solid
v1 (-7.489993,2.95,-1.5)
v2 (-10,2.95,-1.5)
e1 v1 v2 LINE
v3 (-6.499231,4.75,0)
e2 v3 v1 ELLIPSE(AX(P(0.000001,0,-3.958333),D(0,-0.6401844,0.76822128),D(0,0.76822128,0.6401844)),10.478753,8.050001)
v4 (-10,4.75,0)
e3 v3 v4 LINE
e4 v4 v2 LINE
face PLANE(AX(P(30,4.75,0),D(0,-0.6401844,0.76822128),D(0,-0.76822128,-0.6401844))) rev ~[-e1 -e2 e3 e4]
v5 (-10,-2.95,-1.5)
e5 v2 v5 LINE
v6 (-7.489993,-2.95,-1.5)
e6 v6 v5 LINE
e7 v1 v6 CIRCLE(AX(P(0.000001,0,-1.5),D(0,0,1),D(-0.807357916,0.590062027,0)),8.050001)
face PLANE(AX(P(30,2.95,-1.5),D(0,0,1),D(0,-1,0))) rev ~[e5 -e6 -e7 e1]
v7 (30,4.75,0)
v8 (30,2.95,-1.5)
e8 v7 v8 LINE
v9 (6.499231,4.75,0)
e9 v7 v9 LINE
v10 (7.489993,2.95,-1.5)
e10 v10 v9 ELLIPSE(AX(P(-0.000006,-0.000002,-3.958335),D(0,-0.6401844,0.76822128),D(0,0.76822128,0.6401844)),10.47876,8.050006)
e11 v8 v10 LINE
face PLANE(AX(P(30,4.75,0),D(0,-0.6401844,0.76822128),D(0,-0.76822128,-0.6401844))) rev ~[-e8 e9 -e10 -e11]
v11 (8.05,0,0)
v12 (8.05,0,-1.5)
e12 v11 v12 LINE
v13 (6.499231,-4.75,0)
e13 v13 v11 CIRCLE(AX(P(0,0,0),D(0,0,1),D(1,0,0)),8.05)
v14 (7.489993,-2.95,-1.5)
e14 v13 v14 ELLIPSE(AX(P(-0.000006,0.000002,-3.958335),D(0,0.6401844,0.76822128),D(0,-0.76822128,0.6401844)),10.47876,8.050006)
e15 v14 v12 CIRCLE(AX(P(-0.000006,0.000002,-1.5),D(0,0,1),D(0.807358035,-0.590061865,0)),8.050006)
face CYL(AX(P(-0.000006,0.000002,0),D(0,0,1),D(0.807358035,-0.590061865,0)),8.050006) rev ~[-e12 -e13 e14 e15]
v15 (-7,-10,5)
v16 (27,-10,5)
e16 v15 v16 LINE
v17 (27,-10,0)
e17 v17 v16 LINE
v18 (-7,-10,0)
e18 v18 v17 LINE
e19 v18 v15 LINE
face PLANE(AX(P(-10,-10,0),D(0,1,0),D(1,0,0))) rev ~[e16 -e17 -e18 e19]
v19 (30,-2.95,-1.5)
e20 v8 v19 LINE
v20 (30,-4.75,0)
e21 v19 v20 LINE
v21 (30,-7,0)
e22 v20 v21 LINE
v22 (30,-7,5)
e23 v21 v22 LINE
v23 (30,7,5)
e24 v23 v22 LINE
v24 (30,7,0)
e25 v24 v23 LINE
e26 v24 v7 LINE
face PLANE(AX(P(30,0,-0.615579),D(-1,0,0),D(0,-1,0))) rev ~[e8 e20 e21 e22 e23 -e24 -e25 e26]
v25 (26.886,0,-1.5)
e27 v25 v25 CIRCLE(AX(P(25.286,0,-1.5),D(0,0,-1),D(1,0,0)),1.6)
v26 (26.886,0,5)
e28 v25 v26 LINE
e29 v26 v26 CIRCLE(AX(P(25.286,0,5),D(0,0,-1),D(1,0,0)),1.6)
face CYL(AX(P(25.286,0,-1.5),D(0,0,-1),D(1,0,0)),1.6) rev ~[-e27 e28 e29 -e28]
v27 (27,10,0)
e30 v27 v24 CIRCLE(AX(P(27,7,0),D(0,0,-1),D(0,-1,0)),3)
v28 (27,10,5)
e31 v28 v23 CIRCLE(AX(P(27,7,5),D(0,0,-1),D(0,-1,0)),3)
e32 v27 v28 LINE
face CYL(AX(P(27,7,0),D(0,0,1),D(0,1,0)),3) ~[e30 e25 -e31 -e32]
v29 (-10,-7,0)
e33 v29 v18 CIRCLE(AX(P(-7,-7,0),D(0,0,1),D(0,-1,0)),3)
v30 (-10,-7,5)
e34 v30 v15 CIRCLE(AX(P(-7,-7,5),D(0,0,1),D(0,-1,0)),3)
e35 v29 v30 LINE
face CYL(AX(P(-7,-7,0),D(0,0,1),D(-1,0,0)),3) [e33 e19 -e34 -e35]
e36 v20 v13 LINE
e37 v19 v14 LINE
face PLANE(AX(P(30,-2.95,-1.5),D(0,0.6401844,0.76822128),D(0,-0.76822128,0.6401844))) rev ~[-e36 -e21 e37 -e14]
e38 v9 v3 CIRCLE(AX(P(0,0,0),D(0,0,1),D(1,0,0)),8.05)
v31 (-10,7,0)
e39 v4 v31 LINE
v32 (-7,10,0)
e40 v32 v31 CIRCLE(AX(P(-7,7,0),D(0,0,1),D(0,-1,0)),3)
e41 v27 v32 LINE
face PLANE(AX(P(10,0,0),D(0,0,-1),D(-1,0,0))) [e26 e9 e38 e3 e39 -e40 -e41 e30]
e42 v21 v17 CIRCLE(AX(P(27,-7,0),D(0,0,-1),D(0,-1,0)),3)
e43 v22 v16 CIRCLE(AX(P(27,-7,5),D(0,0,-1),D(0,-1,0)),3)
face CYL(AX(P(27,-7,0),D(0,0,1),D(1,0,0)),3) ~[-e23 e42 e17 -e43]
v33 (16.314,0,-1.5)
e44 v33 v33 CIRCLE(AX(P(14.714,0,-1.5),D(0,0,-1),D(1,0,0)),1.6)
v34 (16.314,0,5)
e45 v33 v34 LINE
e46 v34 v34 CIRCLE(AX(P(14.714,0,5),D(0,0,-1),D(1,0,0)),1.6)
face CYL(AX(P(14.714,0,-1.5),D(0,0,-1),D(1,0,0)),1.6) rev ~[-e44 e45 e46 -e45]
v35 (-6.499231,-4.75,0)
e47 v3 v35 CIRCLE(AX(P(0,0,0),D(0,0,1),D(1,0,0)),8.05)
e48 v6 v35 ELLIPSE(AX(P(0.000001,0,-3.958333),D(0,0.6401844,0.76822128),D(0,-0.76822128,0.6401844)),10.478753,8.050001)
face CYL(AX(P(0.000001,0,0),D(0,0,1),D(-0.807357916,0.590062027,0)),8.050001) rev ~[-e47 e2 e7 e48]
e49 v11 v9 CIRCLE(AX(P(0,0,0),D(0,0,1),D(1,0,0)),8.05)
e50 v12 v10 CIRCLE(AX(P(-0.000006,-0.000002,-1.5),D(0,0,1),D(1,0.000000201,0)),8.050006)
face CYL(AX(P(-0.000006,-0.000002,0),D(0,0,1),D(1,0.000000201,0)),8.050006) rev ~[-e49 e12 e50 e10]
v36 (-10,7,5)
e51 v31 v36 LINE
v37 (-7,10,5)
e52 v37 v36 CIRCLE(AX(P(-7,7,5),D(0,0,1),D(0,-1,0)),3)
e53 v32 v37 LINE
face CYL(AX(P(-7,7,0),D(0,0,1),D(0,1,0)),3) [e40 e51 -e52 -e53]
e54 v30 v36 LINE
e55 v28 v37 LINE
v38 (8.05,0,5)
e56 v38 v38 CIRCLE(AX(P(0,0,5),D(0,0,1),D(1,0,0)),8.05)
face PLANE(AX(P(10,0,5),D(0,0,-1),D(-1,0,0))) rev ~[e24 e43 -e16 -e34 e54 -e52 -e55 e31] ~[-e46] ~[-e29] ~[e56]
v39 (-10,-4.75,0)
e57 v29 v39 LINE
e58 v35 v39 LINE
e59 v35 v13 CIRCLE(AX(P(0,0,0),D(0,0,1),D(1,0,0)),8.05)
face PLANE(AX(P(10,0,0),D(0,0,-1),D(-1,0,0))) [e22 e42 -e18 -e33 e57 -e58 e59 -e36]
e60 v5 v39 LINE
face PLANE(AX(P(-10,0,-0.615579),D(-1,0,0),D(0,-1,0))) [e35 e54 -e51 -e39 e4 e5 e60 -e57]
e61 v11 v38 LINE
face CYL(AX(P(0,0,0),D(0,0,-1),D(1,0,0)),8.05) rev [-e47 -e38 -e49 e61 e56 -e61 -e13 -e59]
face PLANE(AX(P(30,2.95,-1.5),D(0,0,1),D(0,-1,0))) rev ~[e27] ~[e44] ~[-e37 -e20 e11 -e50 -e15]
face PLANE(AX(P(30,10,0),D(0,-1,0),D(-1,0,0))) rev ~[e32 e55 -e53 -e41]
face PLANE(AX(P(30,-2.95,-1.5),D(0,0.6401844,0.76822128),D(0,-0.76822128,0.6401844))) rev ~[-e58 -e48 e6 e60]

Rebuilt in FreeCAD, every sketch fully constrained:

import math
import FreeCAD as App
import Part
import Sketcher
Q = App.Units.Quantity


def edges_at(feature, points):
    """Names of the edges that pass closest to the given points."""
    edges = feature.Shape.Edges
    near = lambda p: min(range(len(edges)), key=lambda i: edges[i].distToShape(Part.Vertex(*p))[0])
    return sorted({f"Edge{near(p) + 1}" for p in points})

doc = App.newDocument("Part")
body = doc.addObject("PartDesign::Body", "Body")

# Sketch on XY plane
sketch1 = body.newObject("Sketcher::SketchObject", "Sketch")
sketch1.AttachmentSupport = (doc.getObject("XY_Plane"), [""])
sketch1.MapMode = "FlatFace"
sketch1.addGeometry([
    Part.LineSegment(App.Vector(30, 10, 0), App.Vector(-10, 10, 0)),  # 0
    Part.LineSegment(App.Vector(-10, 10, 0), App.Vector(-10, -10, 0)),  # 1
    Part.LineSegment(App.Vector(-10, -10, 0), App.Vector(30, -10, 0)),  # 2
    Part.LineSegment(App.Vector(30, -10, 0), App.Vector(30, 10, 0)),  # 3
    Part.Circle(App.Vector(0, 0, 0), App.Vector(0, 0, 1), 8),  # 4
], False)
sketch1.addConstraint([
    Sketcher.Constraint("Coincident", 0, 2, 1, 1),
    Sketcher.Constraint("Coincident", 1, 2, 2, 1),
    Sketcher.Constraint("Coincident", 2, 2, 3, 1),
    Sketcher.Constraint("Coincident", 3, 2, 0, 1),
    Sketcher.Constraint("Horizontal", 0),
    Sketcher.Constraint("Vertical", 1),
    Sketcher.Constraint("Horizontal", 2),
    Sketcher.Constraint("Vertical", 3),
    Sketcher.Constraint("Coincident", 4, 3, -1, 1),
    Sketcher.Constraint("Diameter", 4, Q("16.1 mm")),
    Sketcher.Constraint("DistanceX", 0, 2, 0, 1, Q("40 mm")),
    Sketcher.Constraint("DistanceY", 1, 2, 1, 1, Q("20 mm")),
    Sketcher.Constraint("DistanceX", 0, 2, -1, 1, Q("10 mm")),
    Sketcher.Constraint("DistanceY", -1, 1, 0, 2, Q("10 mm")),
])
pad1 = body.newObject("PartDesign::Pad", "Pad")
pad1.Profile = sketch1
pad1.Length = 5

# Sketch on YZ plane
sketch2 = body.newObject("Sketcher::SketchObject", "Sketch001")
sketch2.AttachmentSupport = (doc.getObject("YZ_Plane"), [""])
sketch2.MapMode = "FlatFace"
sketch2.AttachmentOffset = App.Placement(App.Vector(0, 0, 30), App.Rotation())
sketch2.addGeometry([
    Part.LineSegment(App.Vector(4.8, 0, 0), App.Vector(-4.8, 0, 0)),
    Part.LineSegment(App.Vector(-4.8, 0, 0), App.Vector(-3, -1.5, 0)),
    Part.LineSegment(App.Vector(-3, -1.5, 0), App.Vector(3, -1.5, 0)),
    Part.LineSegment(App.Vector(3, -1.5, 0), App.Vector(4.8, 0, 0)),
], False)
sketch2.addConstraint([
    Sketcher.Constraint("Coincident", 0, 2, 1, 1),
    Sketcher.Constraint("Coincident", 1, 2, 2, 1),
    Sketcher.Constraint("Coincident", 2, 2, 3, 1),
    Sketcher.Constraint("Coincident", 3, 2, 0, 1),
    Sketcher.Constraint("Horizontal", 0),
    Sketcher.Constraint("Horizontal", 2),
    Sketcher.Constraint("Symmetric", 0, 2, 3, 2, -1, 1),
    Sketcher.Constraint("Equal", 1, 3),
    Sketcher.Constraint("DistanceX", 0, 2, 0, 1, Q("9.5 mm")),
    Sketcher.Constraint("DistanceX", 2, 1, 2, 2, Q("5.9 mm")),
    Sketcher.Constraint("DistanceY", 1, 2, -1, 1, Q("1.5 mm")),
])
pad2 = body.newObject("PartDesign::Pad", "Pad001")
pad2.Profile = sketch2
pad2.Length = 40
pad2.Reversed = True

# Sketch on XY plane
sketch3 = body.newObject("Sketcher::SketchObject", "Sketch002")
sketch3.AttachmentSupport = (doc.getObject("XY_Plane"), [""])
sketch3.MapMode = "FlatFace"
sketch3.addGeometry([
    Part.ArcOfCircle(Part.Circle(App.Vector(0, 0, 0), App.Vector(0, 0, 1), 8.1), math.radians(-36), math.radians(0)),  # 0
    Part.ArcOfCircle(Part.Circle(App.Vector(0, 0, 0), App.Vector(0, 0, 1), 8.1), math.radians(0), math.radians(36)),  # 1
    Part.LineSegment(App.Vector(6.5, 4.8, 0), App.Vector(-6.5, 4.8, 0)),  # 2
    Part.ArcOfCircle(Part.Circle(App.Vector(0, 0, 0), App.Vector(0, 0, 1), 8.1), math.radians(144), math.radians(216)),  # 3
    Part.LineSegment(App.Vector(-6.5, -4.8, 0), App.Vector(6.5, -4.8, 0)),  # 4
], False)
sketch3.addConstraint([
    Sketcher.Constraint("Tangent", 0, 2, 1, 1),
    Sketcher.Constraint("Coincident", 1, 2, 2, 1),
    Sketcher.Constraint("Coincident", 2, 2, 3, 1),
    Sketcher.Constraint("Coincident", 3, 2, 4, 1),
    Sketcher.Constraint("Coincident", 4, 2, 0, 1),
    Sketcher.Constraint("Horizontal", 2),
    Sketcher.Constraint("Horizontal", 4),
    Sketcher.Constraint("Coincident", 0, 3, -1, 1),
    Sketcher.Constraint("Coincident", 3, 3, -1, 1),
    Sketcher.Constraint("Equal", 0, 1),
    Sketcher.Constraint("Symmetric", 1, 2, 3, 2, -1, 1),
    Sketcher.Constraint("PointOnObject", 0, 2, -1),
    Sketcher.Constraint("Radius", 3, Q("8.050001 mm")),
    Sketcher.Constraint("DistanceY", 3, 2, 2, 2, Q("9.5 mm")),
])
pocket1 = body.newObject("PartDesign::Pocket", "Pocket")
pocket1.Profile = sketch3
pocket1.Type = "ThroughAll"

# Sketch on XY plane
sketch4 = body.newObject("Sketcher::SketchObject", "Sketch003")
sketch4.AttachmentSupport = (doc.getObject("XY_Plane"), [""])
sketch4.MapMode = "FlatFace"
sketch4.AttachmentOffset = App.Placement(App.Vector(0, 0, -1.5), App.Rotation())
sketch4.addGeometry([
    Part.Circle(App.Vector(14.7, 0, 0), App.Vector(0, 0, 1), 1.6),
    Part.Circle(App.Vector(25.3, 0, 0), App.Vector(0, 0, 1), 1.6),
], False)
sketch4.addConstraint([
    Sketcher.Constraint("Equal", 0, 1),
    Sketcher.Constraint("PointOnObject", 0, 3, -1),
    Sketcher.Constraint("PointOnObject", 1, 3, -1),
    Sketcher.Constraint("Diameter", 0, Q("3.2 mm")),
    Sketcher.Constraint("DistanceX", -1, 1, 0, 3, Q("14.714 mm")),
    Sketcher.Constraint("DistanceX", -1, 1, 1, 3, Q("25.286 mm")),
])
pocket2 = body.newObject("PartDesign::Pocket", "Pocket001")
pocket2.Profile = sketch4
pocket2.Type = "ThroughAll"
pocket2.Reversed = True
doc.recompute()

fillet = body.newObject("PartDesign::Fillet", "Fillet")
fillet.Base = (pocket2, edges_at(pocket2, [
    (30, -10, 2.5),
    (30, 10, 2.5),
    (-10, -10, 2.5),
    (-10, 10, 2.5),
]))
fillet.Radius = 3

doc.recompute()
